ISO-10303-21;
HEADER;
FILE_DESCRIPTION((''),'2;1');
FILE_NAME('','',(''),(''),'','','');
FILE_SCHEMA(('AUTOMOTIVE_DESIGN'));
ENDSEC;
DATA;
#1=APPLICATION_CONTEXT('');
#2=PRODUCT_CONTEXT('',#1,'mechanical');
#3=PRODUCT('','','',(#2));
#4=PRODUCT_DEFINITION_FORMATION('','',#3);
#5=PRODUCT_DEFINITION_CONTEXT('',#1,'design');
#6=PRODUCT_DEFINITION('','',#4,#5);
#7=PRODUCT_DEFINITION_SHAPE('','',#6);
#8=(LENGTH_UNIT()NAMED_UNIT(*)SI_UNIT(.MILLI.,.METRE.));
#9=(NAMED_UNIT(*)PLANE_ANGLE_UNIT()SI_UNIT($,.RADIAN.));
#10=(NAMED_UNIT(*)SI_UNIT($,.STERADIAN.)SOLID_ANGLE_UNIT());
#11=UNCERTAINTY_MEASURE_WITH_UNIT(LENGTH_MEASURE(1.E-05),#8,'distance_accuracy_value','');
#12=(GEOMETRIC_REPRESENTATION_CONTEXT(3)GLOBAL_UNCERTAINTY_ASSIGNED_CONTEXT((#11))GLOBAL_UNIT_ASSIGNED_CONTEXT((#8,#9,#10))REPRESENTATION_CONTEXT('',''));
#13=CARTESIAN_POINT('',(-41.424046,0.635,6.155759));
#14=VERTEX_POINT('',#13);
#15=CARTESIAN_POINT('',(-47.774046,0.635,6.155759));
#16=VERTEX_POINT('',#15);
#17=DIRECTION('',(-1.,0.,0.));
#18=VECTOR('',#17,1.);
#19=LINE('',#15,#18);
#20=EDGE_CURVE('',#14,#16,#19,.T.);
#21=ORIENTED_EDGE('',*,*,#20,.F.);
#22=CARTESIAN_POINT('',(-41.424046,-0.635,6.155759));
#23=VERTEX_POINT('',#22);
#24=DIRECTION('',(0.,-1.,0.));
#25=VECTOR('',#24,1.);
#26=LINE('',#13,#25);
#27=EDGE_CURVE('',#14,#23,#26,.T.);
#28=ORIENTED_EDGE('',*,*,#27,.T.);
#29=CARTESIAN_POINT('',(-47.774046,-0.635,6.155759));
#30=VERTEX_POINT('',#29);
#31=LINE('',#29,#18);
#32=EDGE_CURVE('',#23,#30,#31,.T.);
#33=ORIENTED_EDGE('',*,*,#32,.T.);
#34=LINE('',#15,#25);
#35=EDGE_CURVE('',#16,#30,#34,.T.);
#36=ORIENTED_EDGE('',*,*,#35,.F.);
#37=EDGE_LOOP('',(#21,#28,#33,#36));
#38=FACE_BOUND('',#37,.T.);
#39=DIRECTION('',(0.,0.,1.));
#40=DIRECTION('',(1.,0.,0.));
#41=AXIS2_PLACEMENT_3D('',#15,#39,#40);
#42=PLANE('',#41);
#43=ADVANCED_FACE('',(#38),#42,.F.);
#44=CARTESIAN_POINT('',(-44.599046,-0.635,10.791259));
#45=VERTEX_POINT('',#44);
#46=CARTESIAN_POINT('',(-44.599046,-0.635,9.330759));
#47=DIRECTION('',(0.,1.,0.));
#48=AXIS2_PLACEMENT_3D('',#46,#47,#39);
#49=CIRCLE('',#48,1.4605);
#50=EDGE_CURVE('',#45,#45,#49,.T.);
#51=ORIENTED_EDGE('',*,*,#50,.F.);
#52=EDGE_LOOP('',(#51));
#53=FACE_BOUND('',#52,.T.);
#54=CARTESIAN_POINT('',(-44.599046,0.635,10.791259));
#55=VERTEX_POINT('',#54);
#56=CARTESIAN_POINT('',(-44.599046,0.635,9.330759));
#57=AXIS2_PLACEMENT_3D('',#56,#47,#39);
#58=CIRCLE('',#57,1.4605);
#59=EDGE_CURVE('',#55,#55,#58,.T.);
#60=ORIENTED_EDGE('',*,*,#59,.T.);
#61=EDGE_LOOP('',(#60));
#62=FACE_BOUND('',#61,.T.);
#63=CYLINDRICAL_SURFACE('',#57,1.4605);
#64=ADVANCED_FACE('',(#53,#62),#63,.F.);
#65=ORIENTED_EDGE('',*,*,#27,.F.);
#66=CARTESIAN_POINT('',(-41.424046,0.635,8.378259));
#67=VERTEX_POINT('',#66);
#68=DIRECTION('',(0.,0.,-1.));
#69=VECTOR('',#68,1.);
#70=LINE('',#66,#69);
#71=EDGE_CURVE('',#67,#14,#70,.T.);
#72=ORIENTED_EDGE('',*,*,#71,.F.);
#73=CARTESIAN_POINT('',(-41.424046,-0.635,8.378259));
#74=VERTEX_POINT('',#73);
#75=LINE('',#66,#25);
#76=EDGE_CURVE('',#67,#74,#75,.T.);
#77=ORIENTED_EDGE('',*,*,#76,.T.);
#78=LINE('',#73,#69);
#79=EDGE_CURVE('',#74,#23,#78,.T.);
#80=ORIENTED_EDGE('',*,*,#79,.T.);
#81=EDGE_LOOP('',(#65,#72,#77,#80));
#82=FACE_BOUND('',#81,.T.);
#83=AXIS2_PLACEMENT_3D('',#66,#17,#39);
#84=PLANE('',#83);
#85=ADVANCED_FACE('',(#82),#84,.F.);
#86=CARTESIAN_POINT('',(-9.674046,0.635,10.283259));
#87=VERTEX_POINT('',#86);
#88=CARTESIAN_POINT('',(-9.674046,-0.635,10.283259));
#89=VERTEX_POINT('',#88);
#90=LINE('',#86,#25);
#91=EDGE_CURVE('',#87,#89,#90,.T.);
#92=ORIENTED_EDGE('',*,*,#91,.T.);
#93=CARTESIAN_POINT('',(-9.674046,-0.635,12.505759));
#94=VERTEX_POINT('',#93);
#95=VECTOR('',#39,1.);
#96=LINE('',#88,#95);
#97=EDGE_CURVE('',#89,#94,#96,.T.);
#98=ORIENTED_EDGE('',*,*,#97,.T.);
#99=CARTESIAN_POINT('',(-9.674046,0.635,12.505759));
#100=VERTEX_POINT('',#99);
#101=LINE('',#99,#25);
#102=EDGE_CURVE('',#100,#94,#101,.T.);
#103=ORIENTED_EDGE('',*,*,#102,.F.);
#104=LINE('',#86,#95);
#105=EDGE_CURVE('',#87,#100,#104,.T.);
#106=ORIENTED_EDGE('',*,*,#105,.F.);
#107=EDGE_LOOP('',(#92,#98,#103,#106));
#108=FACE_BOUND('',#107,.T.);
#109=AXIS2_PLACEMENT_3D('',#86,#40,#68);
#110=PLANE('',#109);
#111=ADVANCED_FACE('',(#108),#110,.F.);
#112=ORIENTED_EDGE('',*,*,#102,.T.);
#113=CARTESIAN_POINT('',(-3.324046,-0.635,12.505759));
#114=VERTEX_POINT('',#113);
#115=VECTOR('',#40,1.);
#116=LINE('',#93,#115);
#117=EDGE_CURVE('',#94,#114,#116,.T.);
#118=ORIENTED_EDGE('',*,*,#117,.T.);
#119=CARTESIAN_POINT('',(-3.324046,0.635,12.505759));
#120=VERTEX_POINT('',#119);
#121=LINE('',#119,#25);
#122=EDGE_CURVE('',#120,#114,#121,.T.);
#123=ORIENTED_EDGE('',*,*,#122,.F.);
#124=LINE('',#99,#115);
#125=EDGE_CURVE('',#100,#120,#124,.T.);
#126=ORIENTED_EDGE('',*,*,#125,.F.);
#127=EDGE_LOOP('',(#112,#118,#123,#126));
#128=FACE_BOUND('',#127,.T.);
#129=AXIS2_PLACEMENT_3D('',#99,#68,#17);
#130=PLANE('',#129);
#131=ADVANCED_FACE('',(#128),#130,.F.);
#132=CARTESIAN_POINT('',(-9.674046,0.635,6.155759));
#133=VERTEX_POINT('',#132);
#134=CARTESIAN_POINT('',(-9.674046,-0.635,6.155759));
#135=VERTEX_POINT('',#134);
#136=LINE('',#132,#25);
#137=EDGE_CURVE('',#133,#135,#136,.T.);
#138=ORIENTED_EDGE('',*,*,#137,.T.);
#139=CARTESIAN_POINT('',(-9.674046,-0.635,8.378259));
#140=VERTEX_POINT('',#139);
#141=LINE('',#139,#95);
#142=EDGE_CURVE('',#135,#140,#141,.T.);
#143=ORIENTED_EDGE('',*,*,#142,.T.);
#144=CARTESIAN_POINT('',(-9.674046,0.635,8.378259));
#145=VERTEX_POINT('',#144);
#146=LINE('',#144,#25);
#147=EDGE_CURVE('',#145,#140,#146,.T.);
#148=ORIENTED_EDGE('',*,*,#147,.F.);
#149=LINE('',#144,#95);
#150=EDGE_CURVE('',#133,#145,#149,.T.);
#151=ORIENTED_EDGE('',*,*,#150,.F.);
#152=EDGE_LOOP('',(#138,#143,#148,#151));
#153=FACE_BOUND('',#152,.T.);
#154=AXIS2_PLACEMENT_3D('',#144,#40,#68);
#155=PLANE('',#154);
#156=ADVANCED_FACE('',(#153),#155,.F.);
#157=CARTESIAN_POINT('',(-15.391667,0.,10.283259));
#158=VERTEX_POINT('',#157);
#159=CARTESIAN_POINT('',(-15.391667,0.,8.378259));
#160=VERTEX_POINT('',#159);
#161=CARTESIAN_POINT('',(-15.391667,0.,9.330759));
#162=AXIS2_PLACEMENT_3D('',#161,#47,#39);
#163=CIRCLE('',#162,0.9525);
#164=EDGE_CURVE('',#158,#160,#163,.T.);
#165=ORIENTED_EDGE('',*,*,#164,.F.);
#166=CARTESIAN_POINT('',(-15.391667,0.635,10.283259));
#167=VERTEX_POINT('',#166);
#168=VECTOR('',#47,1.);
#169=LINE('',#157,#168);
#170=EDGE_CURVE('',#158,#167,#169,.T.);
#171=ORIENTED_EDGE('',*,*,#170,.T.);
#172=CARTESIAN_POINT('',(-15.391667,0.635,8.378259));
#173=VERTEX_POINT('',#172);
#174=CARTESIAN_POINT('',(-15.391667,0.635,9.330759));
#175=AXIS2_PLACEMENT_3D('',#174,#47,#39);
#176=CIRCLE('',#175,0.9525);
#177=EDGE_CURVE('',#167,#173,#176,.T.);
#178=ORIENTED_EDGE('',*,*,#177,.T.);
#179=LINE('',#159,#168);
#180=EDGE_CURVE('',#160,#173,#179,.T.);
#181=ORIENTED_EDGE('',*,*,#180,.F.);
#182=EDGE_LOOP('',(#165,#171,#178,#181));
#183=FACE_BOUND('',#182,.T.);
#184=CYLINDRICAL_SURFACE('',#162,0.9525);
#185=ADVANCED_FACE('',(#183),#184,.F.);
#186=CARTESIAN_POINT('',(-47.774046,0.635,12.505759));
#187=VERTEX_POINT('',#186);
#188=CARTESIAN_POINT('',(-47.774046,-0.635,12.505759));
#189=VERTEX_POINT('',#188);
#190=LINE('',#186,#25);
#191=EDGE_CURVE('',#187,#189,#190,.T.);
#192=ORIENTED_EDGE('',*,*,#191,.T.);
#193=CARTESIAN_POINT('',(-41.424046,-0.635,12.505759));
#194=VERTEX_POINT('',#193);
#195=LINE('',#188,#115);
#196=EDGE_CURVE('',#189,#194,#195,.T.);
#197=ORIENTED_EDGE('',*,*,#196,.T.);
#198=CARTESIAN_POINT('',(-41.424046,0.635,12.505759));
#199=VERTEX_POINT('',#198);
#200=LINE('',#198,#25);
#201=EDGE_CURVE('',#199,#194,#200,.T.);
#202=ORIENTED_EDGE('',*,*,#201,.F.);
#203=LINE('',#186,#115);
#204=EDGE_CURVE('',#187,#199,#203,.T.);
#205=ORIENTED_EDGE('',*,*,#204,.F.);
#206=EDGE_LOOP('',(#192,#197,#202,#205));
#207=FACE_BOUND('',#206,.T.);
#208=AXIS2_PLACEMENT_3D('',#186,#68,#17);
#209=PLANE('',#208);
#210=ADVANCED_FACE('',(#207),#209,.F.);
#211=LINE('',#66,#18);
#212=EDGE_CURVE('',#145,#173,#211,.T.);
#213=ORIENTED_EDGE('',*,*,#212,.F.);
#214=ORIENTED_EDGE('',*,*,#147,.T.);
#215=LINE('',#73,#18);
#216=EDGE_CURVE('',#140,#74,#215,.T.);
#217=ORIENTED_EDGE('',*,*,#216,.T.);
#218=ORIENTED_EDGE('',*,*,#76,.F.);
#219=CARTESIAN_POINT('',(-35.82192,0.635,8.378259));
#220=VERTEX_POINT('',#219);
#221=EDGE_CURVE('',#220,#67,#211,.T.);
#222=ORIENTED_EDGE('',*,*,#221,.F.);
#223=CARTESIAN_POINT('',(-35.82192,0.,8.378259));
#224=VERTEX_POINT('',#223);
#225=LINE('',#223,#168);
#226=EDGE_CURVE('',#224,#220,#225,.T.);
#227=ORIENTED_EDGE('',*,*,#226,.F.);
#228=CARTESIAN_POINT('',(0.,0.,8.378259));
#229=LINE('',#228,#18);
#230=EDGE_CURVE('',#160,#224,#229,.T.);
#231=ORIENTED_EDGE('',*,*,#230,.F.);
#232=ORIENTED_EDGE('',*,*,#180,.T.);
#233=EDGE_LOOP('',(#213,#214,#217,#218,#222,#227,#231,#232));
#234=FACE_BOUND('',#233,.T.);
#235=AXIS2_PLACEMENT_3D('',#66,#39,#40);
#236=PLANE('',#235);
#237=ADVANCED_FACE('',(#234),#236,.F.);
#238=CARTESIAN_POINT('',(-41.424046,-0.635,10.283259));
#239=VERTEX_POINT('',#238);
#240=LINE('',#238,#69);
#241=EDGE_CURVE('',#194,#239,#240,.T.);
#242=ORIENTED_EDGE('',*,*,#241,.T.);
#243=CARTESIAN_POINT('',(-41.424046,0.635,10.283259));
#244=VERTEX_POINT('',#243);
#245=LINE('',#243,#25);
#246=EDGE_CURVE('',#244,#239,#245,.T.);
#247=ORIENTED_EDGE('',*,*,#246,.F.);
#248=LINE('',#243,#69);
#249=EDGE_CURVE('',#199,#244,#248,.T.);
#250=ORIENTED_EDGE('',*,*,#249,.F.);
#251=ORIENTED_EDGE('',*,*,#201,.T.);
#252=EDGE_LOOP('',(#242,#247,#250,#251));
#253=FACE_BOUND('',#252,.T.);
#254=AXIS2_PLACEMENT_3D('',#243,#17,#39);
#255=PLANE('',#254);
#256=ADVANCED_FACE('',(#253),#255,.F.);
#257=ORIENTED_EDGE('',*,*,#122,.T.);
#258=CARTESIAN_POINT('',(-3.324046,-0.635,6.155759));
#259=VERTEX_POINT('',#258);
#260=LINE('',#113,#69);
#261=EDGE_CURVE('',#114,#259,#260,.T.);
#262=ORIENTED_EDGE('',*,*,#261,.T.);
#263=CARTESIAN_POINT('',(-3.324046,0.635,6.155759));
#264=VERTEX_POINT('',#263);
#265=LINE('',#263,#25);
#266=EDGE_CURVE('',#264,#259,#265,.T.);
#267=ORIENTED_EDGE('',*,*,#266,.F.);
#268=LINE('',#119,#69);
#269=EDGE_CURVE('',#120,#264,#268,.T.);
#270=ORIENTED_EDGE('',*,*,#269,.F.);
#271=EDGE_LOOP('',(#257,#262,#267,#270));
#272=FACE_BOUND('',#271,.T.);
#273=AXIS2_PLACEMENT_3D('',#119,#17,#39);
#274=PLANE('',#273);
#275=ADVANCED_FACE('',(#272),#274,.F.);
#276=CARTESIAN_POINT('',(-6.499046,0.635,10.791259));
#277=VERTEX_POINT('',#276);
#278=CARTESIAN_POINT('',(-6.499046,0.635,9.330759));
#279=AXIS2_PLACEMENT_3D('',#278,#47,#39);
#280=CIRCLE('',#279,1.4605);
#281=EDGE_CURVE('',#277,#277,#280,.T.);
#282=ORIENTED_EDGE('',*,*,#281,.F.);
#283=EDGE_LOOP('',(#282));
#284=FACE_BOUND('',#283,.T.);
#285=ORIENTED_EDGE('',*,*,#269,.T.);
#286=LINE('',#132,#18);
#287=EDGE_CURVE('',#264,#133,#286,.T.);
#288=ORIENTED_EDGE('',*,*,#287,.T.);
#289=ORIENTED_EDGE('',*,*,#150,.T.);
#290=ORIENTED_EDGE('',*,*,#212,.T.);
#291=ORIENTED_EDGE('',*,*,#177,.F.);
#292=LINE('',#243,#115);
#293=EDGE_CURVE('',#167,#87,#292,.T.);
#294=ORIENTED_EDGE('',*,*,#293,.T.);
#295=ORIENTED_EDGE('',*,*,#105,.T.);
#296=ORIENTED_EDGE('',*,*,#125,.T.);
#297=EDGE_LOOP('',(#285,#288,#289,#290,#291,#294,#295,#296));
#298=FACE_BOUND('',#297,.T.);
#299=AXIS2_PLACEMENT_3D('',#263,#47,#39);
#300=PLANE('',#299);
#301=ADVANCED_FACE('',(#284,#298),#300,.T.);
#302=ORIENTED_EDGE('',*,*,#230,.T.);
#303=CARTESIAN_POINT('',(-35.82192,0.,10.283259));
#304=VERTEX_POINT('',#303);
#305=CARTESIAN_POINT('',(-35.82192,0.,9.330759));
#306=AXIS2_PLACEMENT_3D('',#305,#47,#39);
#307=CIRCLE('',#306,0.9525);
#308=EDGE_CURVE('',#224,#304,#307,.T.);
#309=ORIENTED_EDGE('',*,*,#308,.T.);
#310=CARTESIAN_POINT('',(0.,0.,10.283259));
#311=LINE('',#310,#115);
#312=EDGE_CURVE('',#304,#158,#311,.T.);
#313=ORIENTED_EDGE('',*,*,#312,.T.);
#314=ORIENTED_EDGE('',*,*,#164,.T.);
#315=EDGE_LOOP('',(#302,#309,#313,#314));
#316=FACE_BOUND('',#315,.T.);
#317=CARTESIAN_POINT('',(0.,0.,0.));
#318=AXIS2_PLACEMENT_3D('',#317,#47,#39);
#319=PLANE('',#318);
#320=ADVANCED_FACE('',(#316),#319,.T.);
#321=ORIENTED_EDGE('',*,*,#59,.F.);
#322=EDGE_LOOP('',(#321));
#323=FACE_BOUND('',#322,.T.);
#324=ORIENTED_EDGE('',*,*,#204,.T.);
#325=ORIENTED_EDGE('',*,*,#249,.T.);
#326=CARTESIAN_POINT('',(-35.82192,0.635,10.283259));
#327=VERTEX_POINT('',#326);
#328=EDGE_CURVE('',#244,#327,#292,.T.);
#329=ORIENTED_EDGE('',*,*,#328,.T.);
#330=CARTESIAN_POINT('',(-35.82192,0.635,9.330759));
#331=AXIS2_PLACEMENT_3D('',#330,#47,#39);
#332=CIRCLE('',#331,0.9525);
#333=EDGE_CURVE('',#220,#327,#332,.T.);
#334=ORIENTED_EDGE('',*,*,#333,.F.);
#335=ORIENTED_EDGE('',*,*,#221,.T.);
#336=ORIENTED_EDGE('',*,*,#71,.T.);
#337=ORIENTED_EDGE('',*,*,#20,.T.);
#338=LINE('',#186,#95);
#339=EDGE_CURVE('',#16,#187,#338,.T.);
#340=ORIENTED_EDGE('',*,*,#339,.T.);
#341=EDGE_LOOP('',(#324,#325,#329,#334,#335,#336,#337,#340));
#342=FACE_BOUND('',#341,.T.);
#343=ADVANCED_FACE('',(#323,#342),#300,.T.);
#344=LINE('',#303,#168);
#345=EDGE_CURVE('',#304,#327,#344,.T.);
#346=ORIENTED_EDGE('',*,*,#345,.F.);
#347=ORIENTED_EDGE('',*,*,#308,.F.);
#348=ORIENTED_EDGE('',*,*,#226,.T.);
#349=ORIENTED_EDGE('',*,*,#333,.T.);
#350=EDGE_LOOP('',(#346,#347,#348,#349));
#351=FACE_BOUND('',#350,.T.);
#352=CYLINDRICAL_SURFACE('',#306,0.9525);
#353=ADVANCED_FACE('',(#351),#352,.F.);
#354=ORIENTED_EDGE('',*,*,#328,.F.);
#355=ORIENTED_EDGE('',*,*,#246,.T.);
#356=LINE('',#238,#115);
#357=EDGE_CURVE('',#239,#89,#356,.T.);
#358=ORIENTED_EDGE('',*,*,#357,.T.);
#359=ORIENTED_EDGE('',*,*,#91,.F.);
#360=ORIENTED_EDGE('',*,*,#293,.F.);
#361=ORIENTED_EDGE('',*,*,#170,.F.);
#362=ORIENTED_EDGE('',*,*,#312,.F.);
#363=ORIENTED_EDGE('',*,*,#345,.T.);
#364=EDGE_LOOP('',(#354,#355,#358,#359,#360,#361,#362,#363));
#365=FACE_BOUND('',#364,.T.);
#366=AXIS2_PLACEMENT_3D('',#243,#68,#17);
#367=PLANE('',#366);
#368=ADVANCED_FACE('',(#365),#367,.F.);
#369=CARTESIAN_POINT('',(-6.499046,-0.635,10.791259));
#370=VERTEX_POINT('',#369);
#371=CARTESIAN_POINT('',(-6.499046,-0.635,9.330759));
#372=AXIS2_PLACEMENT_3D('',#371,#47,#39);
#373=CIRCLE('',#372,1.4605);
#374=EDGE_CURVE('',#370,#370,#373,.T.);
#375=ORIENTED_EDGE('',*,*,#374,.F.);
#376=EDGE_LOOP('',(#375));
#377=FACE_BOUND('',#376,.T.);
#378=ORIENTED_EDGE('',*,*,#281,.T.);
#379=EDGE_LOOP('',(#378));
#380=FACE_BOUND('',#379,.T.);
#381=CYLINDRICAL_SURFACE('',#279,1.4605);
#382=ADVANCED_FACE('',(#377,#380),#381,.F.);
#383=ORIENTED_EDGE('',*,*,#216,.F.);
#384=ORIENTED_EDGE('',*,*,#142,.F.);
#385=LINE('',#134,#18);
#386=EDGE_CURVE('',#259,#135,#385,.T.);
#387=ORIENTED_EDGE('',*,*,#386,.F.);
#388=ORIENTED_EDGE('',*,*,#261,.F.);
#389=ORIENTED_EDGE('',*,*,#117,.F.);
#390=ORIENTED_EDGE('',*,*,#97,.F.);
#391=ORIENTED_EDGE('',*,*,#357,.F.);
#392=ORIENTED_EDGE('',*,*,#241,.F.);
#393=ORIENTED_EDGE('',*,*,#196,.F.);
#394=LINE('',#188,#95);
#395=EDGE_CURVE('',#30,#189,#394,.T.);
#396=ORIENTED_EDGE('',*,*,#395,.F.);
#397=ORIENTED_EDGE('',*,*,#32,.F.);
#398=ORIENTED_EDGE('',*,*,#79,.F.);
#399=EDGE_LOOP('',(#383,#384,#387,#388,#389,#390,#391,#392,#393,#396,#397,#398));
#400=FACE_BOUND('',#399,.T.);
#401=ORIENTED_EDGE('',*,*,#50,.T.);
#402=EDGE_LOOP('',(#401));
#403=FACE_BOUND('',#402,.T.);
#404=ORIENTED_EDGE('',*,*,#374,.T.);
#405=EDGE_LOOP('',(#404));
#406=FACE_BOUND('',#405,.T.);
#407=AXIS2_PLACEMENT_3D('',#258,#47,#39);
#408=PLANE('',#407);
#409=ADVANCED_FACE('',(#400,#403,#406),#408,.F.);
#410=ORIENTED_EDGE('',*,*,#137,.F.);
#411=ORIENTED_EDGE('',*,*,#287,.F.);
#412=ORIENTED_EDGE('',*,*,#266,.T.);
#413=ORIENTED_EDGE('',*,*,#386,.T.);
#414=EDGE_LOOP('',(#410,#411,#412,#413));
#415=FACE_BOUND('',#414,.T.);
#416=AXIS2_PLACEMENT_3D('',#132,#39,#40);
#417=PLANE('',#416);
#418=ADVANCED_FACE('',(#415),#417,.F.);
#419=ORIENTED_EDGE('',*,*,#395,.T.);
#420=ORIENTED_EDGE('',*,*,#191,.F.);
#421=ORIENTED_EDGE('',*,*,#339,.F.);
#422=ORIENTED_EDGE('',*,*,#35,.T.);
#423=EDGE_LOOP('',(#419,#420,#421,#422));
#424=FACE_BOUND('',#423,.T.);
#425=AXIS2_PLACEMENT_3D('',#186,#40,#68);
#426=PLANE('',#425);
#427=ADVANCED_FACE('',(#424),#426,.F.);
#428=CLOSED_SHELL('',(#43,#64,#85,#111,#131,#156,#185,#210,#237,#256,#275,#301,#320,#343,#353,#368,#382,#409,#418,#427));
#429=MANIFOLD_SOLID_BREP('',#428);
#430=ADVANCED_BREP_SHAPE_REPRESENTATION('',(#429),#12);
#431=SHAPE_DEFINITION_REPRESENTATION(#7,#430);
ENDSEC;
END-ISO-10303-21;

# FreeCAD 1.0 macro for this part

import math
import FreeCAD as App
import Part
import Sketcher
from FreeCAD import Vector
Q = App.Units.Quantity


def add_polygon(sketch, points):
    """Adds a closed chain of lines whose ends are joined by coincident constraints."""
    first, n = sketch.GeometryCount, len(points)
    for a, b in zip(points, points[1:] + points[:1]):
        sketch.addGeometry(Part.LineSegment(App.Vector(*a, 0), App.Vector(*b, 0)), False)
    for i in range(n):
        sketch.addConstraint(Sketcher.Constraint("Coincident", first + i, 2, first + (i + 1) % n, 1))

doc = App.newDocument("Part")
params = doc.addObject("Spreadsheet::Sheet", "Params")
for row, (alias, value) in enumerate([
    ("sketch1_width", "1.25 in"),
    ("sketch1_width2", "0.25 in"),
    ("pad1_length", "0.05 in"),
    ("sketch2_diameter", "0.115 in"),
    ("hole_diameter", "0.115 in"),
    ("pocket1_length", "0.025 in"),
], start=1):
    params.set(f"A{row}", alias)
    params.set(f"B{row}", "=" + value)
    params.setAlias(f"B{row}", alias)

body = doc.addObject("PartDesign::Body", "Body")

# Sketch on XZ plane
sketch1 = body.newObject("Sketcher::SketchObject", "Sketch")
sketch1.AttachmentSupport = (doc.getObject("XZ_Plane"), [""])
sketch1.MapMode = "FlatFace"
add_polygon(sketch1, [(-41.4, 12.5), (-41.4, 10.3), (-9.7, 10.3), (-9.7, 12.5), (-3.3, 12.5), (-3.3, 6.2), (-9.7, 6.2), (-9.7, 8.4), (-41.4, 8.4), (-41.4, 6.2), (-47.8, 6.2), (-47.8, 12.5)])  # lines 0-11
sketch1.addConstraint([
    Sketcher.Constraint("Vertical", 0),
    Sketcher.Constraint("Horizontal", 1),
    Sketcher.Constraint("Vertical", 2),
    Sketcher.Constraint("Horizontal", 3),
    Sketcher.Constraint("Vertical", 4),
    Sketcher.Constraint("Horizontal", 5),
    Sketcher.Constraint("Vertical", 6),
    Sketcher.Constraint("Horizontal", 7),
    Sketcher.Constraint("Vertical", 8),
    Sketcher.Constraint("Horizontal", 9),
    Sketcher.Constraint("Vertical", 10),
    Sketcher.Constraint("Horizontal", 11),
    Sketcher.Constraint("Horizontal", 5, 2, 8, 2),
    Sketcher.Constraint("Horizontal", 3, 2, 10, 2),
    Sketcher.Constraint("Vertical", 2, 2, 5, 2),
    Sketcher.Constraint("Vertical", 0, 2, 7, 2),
    Sketcher.Constraint("Equal", 5, 9),
    Sketcher.Constraint("Equal", 11, 4),
    Sketcher.Constraint("Equal", 2, 6),
    Sketcher.Constraint("DistanceX", 1, 1, 1, 2, Q("1.25 in")),
    Sketcher.Constraint("DistanceX", 3, 1, 3, 2, Q("0.25 in")),
    Sketcher.Constraint("DistanceY", 0, 2, 0, 1, Q("0.0875 in")),
    Sketcher.Constraint("DistanceY", -1, 1, 0, 2, Q("10.283259 mm")),
    Sketcher.Constraint("DistanceX", 0, 2, -1, 1, Q("41.424046 mm")),
])
sketch1.setExpression("Constraints[31]", "Params.sketch1_width")
sketch1.setExpression("Constraints[32]", "Params.sketch1_width2")
pad1 = body.newObject("PartDesign::Pad", "Pad")
pad1.Profile = sketch1
pad1.setExpression("Length", "Params.pad1_length")
pad1.Midplane = True

# Sketch on XZ plane
sketch2 = body.newObject("Sketcher::SketchObject", "Sketch001")
sketch2.AttachmentSupport = (doc.getObject("XZ_Plane"), [""])
sketch2.MapMode = "FlatFace"
sketch2.AttachmentOffset = App.Placement(Vector(0, 0, -0.025 * 25.4), App.Rotation())
sketch2.addGeometry(Part.Circle(Vector(-44.6, 9.3, 0), Vector(0, 0, 1), 1.5), False)
sketch2.addConstraint([
    Sketcher.Constraint("Diameter", 0, Q("0.115 in")),
    Sketcher.Constraint("DistanceY", -1, 1, 0, 3, Q("9.330759 mm")),
    Sketcher.Constraint("DistanceX", 0, 3, -1, 1, Q("44.599046 mm")),
])
sketch2.setExpression("Constraints[0]", "Params.sketch2_diameter")
doc.recompute()
hole = body.newObject("PartDesign::Hole", "Hole")
hole.Profile = sketch2
hole.ThreadType = "None"
hole.setExpression("Diameter", "Params.hole_diameter")
hole.DepthType = "ThroughAll"
hole.Reversed = True
doc.recompute()

datumplane = body.newObject("PartDesign::Plane", "DatumPlane")
datumplane.AttachmentSupport = (doc.getObject("YZ_Plane"), [""])
datumplane.MapMode = "FlatFace"
datumplane.AttachmentOffset = App.Placement(Vector(0, 0, -25.549046), App.Rotation())
mirrored = body.newObject("PartDesign::Mirrored", "Mirrored")
mirrored.Originals = [hole]
mirrored.MirrorPlane = (datumplane, [""])
body.Tip = mirrored

# Sketch on XZ plane
sketch3 = body.newObject("Sketcher::SketchObject", "Sketch002")
sketch3.AttachmentSupport = (doc.getObject("XZ_Plane"), [""])
sketch3.MapMode = "FlatFace"
sketch3.AttachmentOffset = App.Placement(Vector(0, 0, -0.025 * 25.4), App.Rotation())
sketch3.addGeometry([
    Part.LineSegment(Vector(-15.4, 8.4, 0), Vector(-35.8, 8.4, 0)),
    Part.ArcOfCircle(Part.Circle(Vector(-35.8, 9.3, 0), Vector(0, 0, 1), 1), math.radians(90), math.radians(270)),
    Part.LineSegment(Vector(-35.8, 10.3, 0), Vector(-15.4, 10.3, 0)),
    Part.ArcOfCircle(Part.Circle(Vector(-15.4, 9.3, 0), Vector(0, 0, 1), 1), math.radians(-90), math.radians(90)),
], False)
sketch3.addConstraint([
    Sketcher.Constraint("Tangent", 0, 2, 1, 2),
    Sketcher.Constraint("Tangent", 1, 1, 2, 1),
    Sketcher.Constraint("Tangent", 2, 2, 3, 2),
    Sketcher.Constraint("Tangent", 3, 1, 0, 1),
    Sketcher.Constraint("Horizontal", 0),
    Sketcher.Constraint("Horizontal", 2),
    Sketcher.Constraint("Radius", 1, Q("0.0375 in")),
    Sketcher.Constraint("DistanceX", 0, 2, 0, 1, Q("20.430254 mm")),
    Sketcher.Constraint("DistanceX", 1, 3, -1, 1, Q("35.82192 mm")),
    Sketcher.Constraint("DistanceY", -1, 1, 1, 3, Q("9.330759 mm")),
])
pocket1 = body.newObject("PartDesign::Pocket", "Pocket")
pocket1.Profile = sketch3
pocket1.setExpression("Length", "Params.pocket1_length")
pocket1.Reversed = True

doc.recompute()
